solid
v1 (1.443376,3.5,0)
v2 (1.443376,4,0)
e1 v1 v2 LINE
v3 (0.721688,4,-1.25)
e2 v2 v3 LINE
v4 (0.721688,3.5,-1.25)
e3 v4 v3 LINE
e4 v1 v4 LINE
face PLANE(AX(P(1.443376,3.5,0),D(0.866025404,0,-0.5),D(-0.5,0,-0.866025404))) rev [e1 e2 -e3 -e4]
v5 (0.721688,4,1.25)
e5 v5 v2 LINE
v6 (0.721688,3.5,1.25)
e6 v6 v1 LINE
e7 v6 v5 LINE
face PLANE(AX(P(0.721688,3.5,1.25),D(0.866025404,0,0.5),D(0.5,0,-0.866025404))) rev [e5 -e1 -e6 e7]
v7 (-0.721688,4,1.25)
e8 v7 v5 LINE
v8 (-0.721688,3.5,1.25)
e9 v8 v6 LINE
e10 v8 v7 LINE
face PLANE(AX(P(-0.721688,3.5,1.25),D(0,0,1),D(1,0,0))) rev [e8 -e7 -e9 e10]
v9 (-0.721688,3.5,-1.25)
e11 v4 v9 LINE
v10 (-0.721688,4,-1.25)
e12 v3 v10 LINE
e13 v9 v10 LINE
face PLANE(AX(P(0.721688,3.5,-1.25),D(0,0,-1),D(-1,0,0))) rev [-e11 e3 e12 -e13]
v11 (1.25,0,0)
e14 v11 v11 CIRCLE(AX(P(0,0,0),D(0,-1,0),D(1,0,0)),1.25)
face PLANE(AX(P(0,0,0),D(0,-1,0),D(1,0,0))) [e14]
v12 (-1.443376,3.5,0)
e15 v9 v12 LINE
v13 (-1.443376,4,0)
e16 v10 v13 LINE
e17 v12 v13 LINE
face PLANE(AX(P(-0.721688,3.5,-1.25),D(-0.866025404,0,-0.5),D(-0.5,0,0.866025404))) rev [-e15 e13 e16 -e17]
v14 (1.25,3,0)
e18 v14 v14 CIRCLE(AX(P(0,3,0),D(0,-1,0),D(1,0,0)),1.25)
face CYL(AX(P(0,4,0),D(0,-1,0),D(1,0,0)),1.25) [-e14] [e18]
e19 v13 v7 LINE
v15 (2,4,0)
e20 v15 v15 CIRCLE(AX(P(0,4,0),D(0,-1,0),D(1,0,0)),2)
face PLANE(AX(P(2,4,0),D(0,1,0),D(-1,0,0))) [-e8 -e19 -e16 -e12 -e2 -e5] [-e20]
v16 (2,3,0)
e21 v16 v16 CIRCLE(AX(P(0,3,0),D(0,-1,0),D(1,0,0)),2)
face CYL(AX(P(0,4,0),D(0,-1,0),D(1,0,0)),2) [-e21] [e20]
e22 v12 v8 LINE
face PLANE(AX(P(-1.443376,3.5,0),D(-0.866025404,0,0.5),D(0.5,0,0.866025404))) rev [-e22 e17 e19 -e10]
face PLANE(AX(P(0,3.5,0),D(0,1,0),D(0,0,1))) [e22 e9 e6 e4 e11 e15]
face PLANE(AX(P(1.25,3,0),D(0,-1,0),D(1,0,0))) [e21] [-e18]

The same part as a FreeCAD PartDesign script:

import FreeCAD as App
import Part
import Sketcher

V = App.Vector
Q = App.Units.Quantity


def add_polygon(sketch, points):
    """Adds a closed chain of lines whose ends are joined by coincident constraints."""
    first, n = sketch.GeometryCount, len(points)
    for a, b in zip(points, points[1:] + points[:1]):
        sketch.addGeometry(Part.LineSegment(App.Vector(*a, 0), App.Vector(*b, 0)), False)
    for i in range(n):
        sketch.addConstraint(Sketcher.Constraint("Coincident", first + i, 2, first + (i + 1) % n, 1))

doc = App.newDocument("Part")
body = doc.addObject("PartDesign::Body", "Body")

sketch1 = body.newObject("Sketcher::SketchObject", "Sketch")
sketch1.AttachmentSupport = (doc.getObject("XY_Plane"), [""])
sketch1.MapMode = "FlatFace"
add_polygon(sketch1, [(0, 0), (1.2, 0), (1.2, 3), (2, 3), (2, 4), (0, 4)])
sketch1.addConstraint(Sketcher.Constraint("Horizontal", 0))
sketch1.addConstraint(Sketcher.Constraint("Vertical", 1))
sketch1.addConstraint(Sketcher.Constraint("Horizontal", 2))
sketch1.addConstraint(Sketcher.Constraint("Vertical", 3))
sketch1.addConstraint(Sketcher.Constraint("Horizontal", 4))
sketch1.addConstraint(Sketcher.Constraint("Vertical", 5))
sketch1.addConstraint(Sketcher.Constraint("Coincident", 5, 2, -1, 1))
sketch1.addConstraint(Sketcher.Constraint("DistanceX", 4, 2, 4, 1, Q("2 mm")))
sketch1.addConstraint(Sketcher.Constraint("DistanceY", 1, 1, 1, 2, Q("3 mm")))
sketch1.addConstraint(Sketcher.Constraint("DistanceY", 3, 1, 3, 2, Q("1 mm")))
sketch1.addConstraint(Sketcher.Constraint("DistanceX", 0, 1, 0, 2, Q("1.25 mm")))
revolution = body.newObject("PartDesign::Revolution", "Revolution")
revolution.Profile = sketch1
revolution.ReferenceAxis = (sketch1, ["V_Axis"])
revolution.Angle = 360

sketch2 = body.newObject("Sketcher::SketchObject", "Sketch001")
sketch2.AttachmentSupport = (doc.getObject("XZ_Plane"), [""])
sketch2.MapMode = "FlatFace"
sketch2.AttachmentOffset = App.Placement(V(0, 0, -4), App.Rotation())
add_polygon(sketch2, [(1.4, 0), (0.7, -1.2), (-0.7, -1.2), (-1.4, 0), (-0.7, 1.2), (0.7, 1.2)])
sketch2.addConstraint(Sketcher.Constraint("Horizontal", 1))
sketch2.addConstraint(Sketcher.Constraint("Horizontal", 4))
sketch2.addConstraint(Sketcher.Constraint("Symmetric", 0, 2, 3, 2, -1, 1))
sketch2.addConstraint(Sketcher.Constraint("Symmetric", 2, 2, 5, 2, -1, 1))
sketch2.addConstraint(Sketcher.Constraint("PointOnObject", 2, 2, -1))
sketch2.addConstraint(Sketcher.Constraint("Parallel", 2, 5))
sketch2.addConstraint(Sketcher.Constraint("Vertical", 1, 2, 3, 2))
sketch2.addConstraint(Sketcher.Constraint("Angle", 0, Q("-120 deg")))
sketch2.addConstraint(Sketcher.Constraint("DistanceY", 1, 2, 3, 2, Q("2.5 mm")))
sketch2.addConstraint(Sketcher.Constraint("DistanceX", 1, 2, 1, 1, Q("1.443376 mm")))
pocket1 = body.newObject("PartDesign::Pocket", "Pocket")
pocket1.Profile = sketch2
pocket1.Length = 0.5
pocket1.Reversed = True

doc.recompute()
